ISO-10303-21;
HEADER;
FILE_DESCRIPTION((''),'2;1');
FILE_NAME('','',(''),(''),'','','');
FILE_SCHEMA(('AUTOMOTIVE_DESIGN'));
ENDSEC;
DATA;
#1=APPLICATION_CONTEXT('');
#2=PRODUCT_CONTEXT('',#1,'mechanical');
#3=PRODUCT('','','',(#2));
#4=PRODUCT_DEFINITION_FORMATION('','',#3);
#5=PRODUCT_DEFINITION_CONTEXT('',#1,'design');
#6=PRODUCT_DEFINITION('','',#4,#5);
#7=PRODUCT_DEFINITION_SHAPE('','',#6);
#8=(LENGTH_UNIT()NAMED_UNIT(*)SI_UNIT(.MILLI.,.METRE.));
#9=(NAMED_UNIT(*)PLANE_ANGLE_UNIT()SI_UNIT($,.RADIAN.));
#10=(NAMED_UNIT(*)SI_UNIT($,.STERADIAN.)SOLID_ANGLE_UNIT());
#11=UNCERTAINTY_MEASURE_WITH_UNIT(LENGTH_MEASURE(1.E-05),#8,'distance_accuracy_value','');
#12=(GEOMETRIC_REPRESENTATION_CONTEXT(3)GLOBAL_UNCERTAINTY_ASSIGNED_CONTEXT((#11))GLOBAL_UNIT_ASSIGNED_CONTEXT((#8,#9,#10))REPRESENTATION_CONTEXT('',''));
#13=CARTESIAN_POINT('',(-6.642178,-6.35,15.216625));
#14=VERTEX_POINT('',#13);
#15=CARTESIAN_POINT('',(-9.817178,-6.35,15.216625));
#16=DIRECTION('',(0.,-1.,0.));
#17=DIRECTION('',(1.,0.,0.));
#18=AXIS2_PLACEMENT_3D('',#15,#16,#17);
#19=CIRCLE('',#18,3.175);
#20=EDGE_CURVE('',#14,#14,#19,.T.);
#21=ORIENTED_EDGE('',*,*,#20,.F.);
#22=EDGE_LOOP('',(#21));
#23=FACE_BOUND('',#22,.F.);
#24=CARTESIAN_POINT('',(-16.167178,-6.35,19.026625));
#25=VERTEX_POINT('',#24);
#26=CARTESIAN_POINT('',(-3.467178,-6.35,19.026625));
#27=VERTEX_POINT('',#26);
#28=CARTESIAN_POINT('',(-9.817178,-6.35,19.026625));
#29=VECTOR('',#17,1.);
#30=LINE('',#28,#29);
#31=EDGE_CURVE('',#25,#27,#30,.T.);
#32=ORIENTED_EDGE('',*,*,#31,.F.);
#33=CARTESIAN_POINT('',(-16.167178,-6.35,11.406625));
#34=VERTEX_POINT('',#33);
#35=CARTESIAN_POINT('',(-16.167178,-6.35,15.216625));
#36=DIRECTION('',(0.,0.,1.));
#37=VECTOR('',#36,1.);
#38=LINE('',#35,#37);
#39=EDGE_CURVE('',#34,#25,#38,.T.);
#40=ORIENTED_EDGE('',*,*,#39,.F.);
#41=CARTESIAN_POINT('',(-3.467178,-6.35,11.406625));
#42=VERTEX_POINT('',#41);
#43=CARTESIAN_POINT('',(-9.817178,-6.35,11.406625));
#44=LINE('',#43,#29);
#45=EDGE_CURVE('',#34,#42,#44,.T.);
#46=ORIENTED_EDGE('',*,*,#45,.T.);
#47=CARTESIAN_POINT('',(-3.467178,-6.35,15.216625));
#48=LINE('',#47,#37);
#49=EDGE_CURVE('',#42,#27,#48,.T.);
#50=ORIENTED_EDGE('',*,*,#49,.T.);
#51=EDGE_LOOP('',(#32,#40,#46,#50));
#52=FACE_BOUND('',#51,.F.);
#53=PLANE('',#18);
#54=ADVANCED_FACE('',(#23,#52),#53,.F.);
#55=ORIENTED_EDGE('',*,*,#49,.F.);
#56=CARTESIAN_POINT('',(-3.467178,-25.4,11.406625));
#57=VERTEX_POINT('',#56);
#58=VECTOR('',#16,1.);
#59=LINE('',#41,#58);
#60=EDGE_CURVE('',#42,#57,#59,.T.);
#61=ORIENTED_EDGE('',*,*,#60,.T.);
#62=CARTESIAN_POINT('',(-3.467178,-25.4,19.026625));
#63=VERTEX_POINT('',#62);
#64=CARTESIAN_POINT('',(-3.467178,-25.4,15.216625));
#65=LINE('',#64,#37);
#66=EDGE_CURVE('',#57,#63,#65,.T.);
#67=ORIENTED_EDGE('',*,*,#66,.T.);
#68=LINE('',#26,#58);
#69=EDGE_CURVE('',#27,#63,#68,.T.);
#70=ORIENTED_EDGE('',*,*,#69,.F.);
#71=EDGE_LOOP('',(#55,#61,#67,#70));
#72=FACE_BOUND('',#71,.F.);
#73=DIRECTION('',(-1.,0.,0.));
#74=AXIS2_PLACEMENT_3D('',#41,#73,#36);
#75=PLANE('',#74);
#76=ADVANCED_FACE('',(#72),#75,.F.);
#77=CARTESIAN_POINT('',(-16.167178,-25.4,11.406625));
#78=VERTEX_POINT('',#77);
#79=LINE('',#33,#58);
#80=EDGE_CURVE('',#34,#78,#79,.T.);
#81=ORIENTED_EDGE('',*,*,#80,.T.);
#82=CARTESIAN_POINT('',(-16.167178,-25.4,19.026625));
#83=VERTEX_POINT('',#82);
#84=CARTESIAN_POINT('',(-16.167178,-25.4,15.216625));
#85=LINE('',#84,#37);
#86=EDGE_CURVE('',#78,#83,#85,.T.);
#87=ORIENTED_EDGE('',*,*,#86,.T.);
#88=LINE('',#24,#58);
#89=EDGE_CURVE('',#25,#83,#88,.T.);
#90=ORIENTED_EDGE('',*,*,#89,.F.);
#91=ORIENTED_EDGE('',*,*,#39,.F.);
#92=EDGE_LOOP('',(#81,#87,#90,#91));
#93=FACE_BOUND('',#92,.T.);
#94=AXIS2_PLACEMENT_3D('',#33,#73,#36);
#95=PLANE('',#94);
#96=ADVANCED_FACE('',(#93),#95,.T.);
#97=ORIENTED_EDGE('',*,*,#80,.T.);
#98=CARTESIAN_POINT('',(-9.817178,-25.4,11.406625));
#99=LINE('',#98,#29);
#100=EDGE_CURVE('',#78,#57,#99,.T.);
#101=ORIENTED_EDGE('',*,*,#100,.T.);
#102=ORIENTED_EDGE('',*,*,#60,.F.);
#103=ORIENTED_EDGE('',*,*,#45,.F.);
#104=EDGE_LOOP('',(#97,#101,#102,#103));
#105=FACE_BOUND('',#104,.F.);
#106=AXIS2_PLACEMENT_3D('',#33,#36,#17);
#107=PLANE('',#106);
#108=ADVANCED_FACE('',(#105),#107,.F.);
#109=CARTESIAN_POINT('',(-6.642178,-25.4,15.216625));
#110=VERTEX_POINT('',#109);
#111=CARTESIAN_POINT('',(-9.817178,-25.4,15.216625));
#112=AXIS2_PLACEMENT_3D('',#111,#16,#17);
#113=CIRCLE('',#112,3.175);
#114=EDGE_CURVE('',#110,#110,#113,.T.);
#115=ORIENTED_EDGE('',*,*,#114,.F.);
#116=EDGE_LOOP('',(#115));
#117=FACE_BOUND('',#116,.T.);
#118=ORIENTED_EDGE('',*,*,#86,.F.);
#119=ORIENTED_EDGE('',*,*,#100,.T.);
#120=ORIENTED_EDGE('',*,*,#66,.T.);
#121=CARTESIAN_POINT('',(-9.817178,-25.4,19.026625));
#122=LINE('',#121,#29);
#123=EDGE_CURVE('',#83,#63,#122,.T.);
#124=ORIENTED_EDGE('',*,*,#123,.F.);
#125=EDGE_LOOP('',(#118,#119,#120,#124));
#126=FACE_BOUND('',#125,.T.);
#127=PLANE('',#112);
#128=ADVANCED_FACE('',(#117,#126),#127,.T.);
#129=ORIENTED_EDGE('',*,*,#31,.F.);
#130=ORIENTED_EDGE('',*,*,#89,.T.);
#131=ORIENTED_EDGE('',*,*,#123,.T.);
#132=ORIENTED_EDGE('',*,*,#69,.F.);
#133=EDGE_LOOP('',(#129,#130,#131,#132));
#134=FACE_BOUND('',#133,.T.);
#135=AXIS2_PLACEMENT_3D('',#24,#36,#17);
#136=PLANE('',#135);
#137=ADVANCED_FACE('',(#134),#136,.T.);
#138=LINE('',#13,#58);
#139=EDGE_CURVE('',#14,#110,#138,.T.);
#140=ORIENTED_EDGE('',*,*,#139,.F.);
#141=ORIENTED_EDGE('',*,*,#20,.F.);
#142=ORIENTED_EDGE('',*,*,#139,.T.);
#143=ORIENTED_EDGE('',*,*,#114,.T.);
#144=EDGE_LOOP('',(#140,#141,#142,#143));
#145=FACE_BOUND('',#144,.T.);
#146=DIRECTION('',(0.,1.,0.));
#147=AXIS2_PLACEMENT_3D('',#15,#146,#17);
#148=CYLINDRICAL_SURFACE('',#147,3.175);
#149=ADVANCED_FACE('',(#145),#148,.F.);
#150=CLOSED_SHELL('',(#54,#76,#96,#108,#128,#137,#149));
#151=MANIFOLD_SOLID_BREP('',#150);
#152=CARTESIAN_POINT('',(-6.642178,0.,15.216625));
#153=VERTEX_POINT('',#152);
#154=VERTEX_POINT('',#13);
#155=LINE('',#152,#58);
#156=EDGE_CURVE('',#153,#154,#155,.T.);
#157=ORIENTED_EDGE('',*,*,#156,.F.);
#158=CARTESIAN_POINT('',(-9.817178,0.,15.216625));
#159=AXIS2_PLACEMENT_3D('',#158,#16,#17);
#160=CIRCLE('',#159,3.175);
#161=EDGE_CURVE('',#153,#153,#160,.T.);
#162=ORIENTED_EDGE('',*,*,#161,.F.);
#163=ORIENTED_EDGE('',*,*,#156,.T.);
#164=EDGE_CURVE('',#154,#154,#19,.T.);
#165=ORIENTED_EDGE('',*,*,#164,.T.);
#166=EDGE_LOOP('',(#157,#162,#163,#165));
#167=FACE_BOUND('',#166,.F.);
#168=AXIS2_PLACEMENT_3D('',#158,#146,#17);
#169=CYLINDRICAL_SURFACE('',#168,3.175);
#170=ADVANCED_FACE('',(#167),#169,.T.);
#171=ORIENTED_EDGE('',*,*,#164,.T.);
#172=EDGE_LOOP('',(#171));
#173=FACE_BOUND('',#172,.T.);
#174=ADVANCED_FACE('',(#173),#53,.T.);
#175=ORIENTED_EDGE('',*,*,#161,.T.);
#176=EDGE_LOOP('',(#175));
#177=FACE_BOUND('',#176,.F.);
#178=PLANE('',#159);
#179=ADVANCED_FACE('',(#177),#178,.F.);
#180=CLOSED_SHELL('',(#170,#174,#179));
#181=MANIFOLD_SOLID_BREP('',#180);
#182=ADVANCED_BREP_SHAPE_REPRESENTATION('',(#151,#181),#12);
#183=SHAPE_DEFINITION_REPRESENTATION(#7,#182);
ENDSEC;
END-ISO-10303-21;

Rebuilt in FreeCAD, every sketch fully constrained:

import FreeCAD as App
import Part
import Sketcher
from FreeCAD import Vector
Q = App.Units.Quantity


def add_polygon(sketch, points):
    """Adds a closed chain of lines whose ends are joined by coincident constraints."""
    first, n = sketch.GeometryCount, len(points)
    for a, b in zip(points, points[1:] + points[:1]):
        sketch.addGeometry(Part.LineSegment(App.Vector(*a, 0), App.Vector(*b, 0)), False)
    for i in range(n):
        sketch.addConstraint(Sketcher.Constraint("Coincident", first + i, 2, first + (i + 1) % n, 1))

doc = App.newDocument("Part")
body = doc.addObject("PartDesign::Body", "Body")

# Sketch on XZ plane
sketch1 = doc.addObject("Sketcher::SketchObject", "Sketch")
body.addObject(sketch1)
sketch1.AttachmentSupport = (doc.XZ_Plane, [""])
sketch1.MapMode = "FlatFace"
sketch1.addGeometry(Part.Circle(Vector(-9.817178, 15.216625, 0), Vector(0, 0, 1), 3.175), False)
sketch1.addConstraint(Sketcher.Constraint("Diameter", 0, Q("0.25 in")))
sketch1.addConstraint(Sketcher.Constraint("DistanceX", 0, 3, -1, 1, 9.817178))
sketch1.addConstraint(Sketcher.Constraint("DistanceY", -1, 1, 0, 3, 15.216625))
pad1 = doc.addObject("PartDesign::Pad", "Pad")
body.addObject(pad1)
pad1.Profile = sketch1
pad1.Length = Q("0.25 in")
body2 = doc.addObject("PartDesign::Body", "Body001")

# Sketch on XZ plane
sketch2 = doc.addObject("Sketcher::SketchObject", "Sketch001")
body2.addObject(sketch2)
sketch2.AttachmentSupport = (doc.getObject("XZ_Plane001"), [""])
sketch2.MapMode = "FlatFace"
sketch2.AttachmentOffset = App.Placement(Vector(0, 0, 0.25 * 25.4), App.Rotation())
add_polygon(sketch2, [(-16.167178, 19.026625), (-16.167178, 11.406625), (-3.467178, 11.406625), (-3.467178, 19.026625)])  # lines 0-3
sketch2.addGeometry(Part.Circle(Vector(-9.817178, 15.216625, 0), Vector(0, 0, 1), 3.175), False)  # 4
sketch2.addConstraint(Sketcher.Constraint("Vertical", 0))
sketch2.addConstraint(Sketcher.Constraint("Horizontal", 1))
sketch2.addConstraint(Sketcher.Constraint("Vertical", 2))
sketch2.addConstraint(Sketcher.Constraint("Horizontal", 3))
sketch2.addConstraint(Sketcher.Constraint("Diameter", 4, Q("0.25 in")))
sketch2.addConstraint(Sketcher.Constraint("DistanceX", 1, 1, 1, 2, Q("0.5 in")))
sketch2.addConstraint(Sketcher.Constraint("DistanceY", 0, 2, 0, 1, Q("0.3 in")))
sketch2.addConstraint(Sketcher.Constraint("DistanceX", 0, 2, 4, 3, Q("0.25 in")))
sketch2.addConstraint(Sketcher.Constraint("DistanceY", 0, 2, 4, 3, Q("0.15 in")))
sketch2.addConstraint(Sketcher.Constraint("DistanceX", 0, 2, -1, 1, 16.167178))
sketch2.addConstraint(Sketcher.Constraint("DistanceY", -1, 1, 4, 3, 15.216625))
pad2 = doc.addObject("PartDesign::Pad", "Pad001")
body2.addObject(pad2)
pad2.Profile = sketch2
pad2.Length = Q("0.75 in")

doc.recompute()
